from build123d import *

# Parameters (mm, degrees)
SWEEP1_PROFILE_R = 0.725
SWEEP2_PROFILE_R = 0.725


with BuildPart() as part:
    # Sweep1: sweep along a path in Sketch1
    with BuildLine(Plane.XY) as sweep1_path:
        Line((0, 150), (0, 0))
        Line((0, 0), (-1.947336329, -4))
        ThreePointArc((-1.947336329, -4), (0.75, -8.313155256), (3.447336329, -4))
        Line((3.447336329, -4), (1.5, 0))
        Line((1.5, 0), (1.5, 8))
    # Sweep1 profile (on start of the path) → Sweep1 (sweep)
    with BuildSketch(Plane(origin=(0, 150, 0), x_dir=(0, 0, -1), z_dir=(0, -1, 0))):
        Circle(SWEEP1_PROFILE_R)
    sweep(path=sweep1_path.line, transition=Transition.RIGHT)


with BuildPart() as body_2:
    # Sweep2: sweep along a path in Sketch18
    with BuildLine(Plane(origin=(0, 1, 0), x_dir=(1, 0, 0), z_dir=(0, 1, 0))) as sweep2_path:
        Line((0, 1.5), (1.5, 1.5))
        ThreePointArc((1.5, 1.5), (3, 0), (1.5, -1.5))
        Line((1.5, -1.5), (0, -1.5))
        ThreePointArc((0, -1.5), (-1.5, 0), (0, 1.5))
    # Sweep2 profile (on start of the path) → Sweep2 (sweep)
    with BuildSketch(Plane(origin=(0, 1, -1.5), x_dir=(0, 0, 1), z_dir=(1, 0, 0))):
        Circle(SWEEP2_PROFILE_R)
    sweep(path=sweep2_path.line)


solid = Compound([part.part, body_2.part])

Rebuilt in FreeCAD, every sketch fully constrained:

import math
import FreeCAD as App
import Part
import Sketcher
from FreeCAD import Vector
Q = App.Units.Quantity

doc = App.newDocument("Part")
body = doc.addObject("PartDesign::Body", "Body")

sketch1 = doc.addObject("Sketcher::SketchObject", "Sketch")
body.addObject(sketch1)
sketch1.AttachmentSupport = (doc.XZ_Plane, [""])
sketch1.MapMode = "FlatFace"
sketch1.AttachmentOffset = App.Placement(Vector(0, 0, -150), App.Rotation())
sketch1.addGeometry(Part.Circle(Vector(0, 0, 0), Vector(0, 0, 1), 0.725), False)
sketch1.addConstraint([
    Sketcher.Constraint("Coincident", 0, 3, -1, 1),
    Sketcher.Constraint("Diameter", 0, Q("1.45 mm")),
])

sketch2 = doc.addObject("Sketcher::SketchObject", "Sketch001")
body.addObject(sketch2)
sketch2.AttachmentSupport = (doc.XY_Plane, [""])
sketch2.MapMode = "FlatFace"
sketch2.addGeometry([
    Part.LineSegment(Vector(0, 150, 0), Vector(0, 0, 0)),
    Part.LineSegment(Vector(0, 0, 0), Vector(-1.947336, -4, 0)),
    Part.ArcOfCircle(Part.Circle(Vector(0.75, -5.313155, 0), Vector(0, 0, 1), 3), math.radians(154.041602), math.radians(385.958398)),
    Part.LineSegment(Vector(3.447336, -4, 0), Vector(1.5, 0, 0)),
    Part.LineSegment(Vector(1.5, 0, 0), Vector(1.5, 8, 0)),
], False)
sketch2.addConstraint([
    Sketcher.Constraint("Coincident", 0, 2, 1, 1),
    Sketcher.Constraint("Tangent", 1, 2, 2, 1),
    Sketcher.Constraint("Tangent", 2, 2, 3, 1),
    Sketcher.Constraint("Coincident", 3, 2, 4, 1),
    Sketcher.Constraint("Vertical", 0),
    Sketcher.Constraint("Vertical", 4),
    Sketcher.Constraint("Coincident", 0, 2, -1, 1),
    Sketcher.Constraint("PointOnObject", 3, 2, -1),
    Sketcher.Constraint("Horizontal", 1, 2, 2, 2),
    Sketcher.Constraint("Radius", 2, Q("3 mm")),
    Sketcher.Constraint("DistanceY", 0, 2, 0, 1, Q("150 mm")),
    Sketcher.Constraint("DistanceY", 4, 1, 4, 2, Q("8 mm")),
    Sketcher.Constraint("DistanceY", 1, 2, -1, 1, Q("4 mm")),
    Sketcher.Constraint("DistanceX", -1, 1, 3, 2, Q("1.5 mm")),
])
doc.recompute()

additivepipe = doc.addObject("PartDesign::AdditivePipe", "AdditivePipe")
body.addObject(additivepipe)
additivepipe.Profile = sketch1
additivepipe.Spine = (sketch2, ["Edge1", "Edge2", "Edge3", "Edge4", "Edge5"])
additivepipe.Transition = "Right corner"
body2 = doc.addObject("PartDesign::Body", "Body001")

sketch3 = doc.addObject("Sketcher::SketchObject", "Sketch002")
body2.addObject(sketch3)
sketch3.AttachmentSupport = (doc.getObject("YZ_Plane001"), [""])
sketch3.MapMode = "FlatFace"
sketch3.addGeometry(Part.Circle(Vector(1, -1.5, 0), Vector(0, 0, 1), 0.725), False)
sketch3.addConstraint([
    Sketcher.Constraint("Diameter", 0, Q("1.45 mm")),
    Sketcher.Constraint("DistanceX", -1, 1, 0, 3, Q("1 mm")),
    Sketcher.Constraint("DistanceY", 0, 3, -1, 1, Q("1.5 mm")),
])

sketch4 = doc.addObject("Sketcher::SketchObject", "Sketch003")
body2.addObject(sketch4)
sketch4.AttachmentSupport = (doc.getObject("XZ_Plane001"), [""])
sketch4.MapMode = "FlatFace"
sketch4.AttachmentOffset = App.Placement(Vector(0, 0, -1), App.Rotation())
sketch4.addGeometry([
    Part.LineSegment(Vector(0, -1.5, 0), Vector(1.5, -1.5, 0)),
    Part.ArcOfCircle(Part.Circle(Vector(1.5, 0, 0), Vector(0, 0, 1), 1.5), math.radians(-90), math.radians(90)),
    Part.LineSegment(Vector(1.5, 1.5, 0), Vector(0, 1.5, 0)),
    Part.ArcOfCircle(Part.Circle(Vector(0, 0, 0), Vector(0, 0, 1), 1.5), math.radians(90), math.radians(270)),
], False)
sketch4.addConstraint([
    Sketcher.Constraint("Tangent", 0, 2, 1, 1),
    Sketcher.Constraint("Tangent", 1, 2, 2, 1),
    Sketcher.Constraint("Tangent", 2, 2, 3, 1),
    Sketcher.Constraint("Tangent", 3, 2, 0, 1),
    Sketcher.Constraint("Horizontal", 0),
    Sketcher.Constraint("Horizontal", 2),
    Sketcher.Constraint("Coincident", 3, 3, -1, 1),
    Sketcher.Constraint("Radius", 1, Q("1.5 mm")),
    Sketcher.Constraint("DistanceX", 0, 1, 0, 2, Q("1.5 mm")),
])
doc.recompute()

additivepipe2 = doc.addObject("PartDesign::AdditivePipe", "AdditivePipe001")
body2.addObject(additivepipe2)
additivepipe2.Profile = sketch3
additivepipe2.Spine = (sketch4, ["Edge1", "Edge2", "Edge3", "Edge4"])

doc.recompute()
